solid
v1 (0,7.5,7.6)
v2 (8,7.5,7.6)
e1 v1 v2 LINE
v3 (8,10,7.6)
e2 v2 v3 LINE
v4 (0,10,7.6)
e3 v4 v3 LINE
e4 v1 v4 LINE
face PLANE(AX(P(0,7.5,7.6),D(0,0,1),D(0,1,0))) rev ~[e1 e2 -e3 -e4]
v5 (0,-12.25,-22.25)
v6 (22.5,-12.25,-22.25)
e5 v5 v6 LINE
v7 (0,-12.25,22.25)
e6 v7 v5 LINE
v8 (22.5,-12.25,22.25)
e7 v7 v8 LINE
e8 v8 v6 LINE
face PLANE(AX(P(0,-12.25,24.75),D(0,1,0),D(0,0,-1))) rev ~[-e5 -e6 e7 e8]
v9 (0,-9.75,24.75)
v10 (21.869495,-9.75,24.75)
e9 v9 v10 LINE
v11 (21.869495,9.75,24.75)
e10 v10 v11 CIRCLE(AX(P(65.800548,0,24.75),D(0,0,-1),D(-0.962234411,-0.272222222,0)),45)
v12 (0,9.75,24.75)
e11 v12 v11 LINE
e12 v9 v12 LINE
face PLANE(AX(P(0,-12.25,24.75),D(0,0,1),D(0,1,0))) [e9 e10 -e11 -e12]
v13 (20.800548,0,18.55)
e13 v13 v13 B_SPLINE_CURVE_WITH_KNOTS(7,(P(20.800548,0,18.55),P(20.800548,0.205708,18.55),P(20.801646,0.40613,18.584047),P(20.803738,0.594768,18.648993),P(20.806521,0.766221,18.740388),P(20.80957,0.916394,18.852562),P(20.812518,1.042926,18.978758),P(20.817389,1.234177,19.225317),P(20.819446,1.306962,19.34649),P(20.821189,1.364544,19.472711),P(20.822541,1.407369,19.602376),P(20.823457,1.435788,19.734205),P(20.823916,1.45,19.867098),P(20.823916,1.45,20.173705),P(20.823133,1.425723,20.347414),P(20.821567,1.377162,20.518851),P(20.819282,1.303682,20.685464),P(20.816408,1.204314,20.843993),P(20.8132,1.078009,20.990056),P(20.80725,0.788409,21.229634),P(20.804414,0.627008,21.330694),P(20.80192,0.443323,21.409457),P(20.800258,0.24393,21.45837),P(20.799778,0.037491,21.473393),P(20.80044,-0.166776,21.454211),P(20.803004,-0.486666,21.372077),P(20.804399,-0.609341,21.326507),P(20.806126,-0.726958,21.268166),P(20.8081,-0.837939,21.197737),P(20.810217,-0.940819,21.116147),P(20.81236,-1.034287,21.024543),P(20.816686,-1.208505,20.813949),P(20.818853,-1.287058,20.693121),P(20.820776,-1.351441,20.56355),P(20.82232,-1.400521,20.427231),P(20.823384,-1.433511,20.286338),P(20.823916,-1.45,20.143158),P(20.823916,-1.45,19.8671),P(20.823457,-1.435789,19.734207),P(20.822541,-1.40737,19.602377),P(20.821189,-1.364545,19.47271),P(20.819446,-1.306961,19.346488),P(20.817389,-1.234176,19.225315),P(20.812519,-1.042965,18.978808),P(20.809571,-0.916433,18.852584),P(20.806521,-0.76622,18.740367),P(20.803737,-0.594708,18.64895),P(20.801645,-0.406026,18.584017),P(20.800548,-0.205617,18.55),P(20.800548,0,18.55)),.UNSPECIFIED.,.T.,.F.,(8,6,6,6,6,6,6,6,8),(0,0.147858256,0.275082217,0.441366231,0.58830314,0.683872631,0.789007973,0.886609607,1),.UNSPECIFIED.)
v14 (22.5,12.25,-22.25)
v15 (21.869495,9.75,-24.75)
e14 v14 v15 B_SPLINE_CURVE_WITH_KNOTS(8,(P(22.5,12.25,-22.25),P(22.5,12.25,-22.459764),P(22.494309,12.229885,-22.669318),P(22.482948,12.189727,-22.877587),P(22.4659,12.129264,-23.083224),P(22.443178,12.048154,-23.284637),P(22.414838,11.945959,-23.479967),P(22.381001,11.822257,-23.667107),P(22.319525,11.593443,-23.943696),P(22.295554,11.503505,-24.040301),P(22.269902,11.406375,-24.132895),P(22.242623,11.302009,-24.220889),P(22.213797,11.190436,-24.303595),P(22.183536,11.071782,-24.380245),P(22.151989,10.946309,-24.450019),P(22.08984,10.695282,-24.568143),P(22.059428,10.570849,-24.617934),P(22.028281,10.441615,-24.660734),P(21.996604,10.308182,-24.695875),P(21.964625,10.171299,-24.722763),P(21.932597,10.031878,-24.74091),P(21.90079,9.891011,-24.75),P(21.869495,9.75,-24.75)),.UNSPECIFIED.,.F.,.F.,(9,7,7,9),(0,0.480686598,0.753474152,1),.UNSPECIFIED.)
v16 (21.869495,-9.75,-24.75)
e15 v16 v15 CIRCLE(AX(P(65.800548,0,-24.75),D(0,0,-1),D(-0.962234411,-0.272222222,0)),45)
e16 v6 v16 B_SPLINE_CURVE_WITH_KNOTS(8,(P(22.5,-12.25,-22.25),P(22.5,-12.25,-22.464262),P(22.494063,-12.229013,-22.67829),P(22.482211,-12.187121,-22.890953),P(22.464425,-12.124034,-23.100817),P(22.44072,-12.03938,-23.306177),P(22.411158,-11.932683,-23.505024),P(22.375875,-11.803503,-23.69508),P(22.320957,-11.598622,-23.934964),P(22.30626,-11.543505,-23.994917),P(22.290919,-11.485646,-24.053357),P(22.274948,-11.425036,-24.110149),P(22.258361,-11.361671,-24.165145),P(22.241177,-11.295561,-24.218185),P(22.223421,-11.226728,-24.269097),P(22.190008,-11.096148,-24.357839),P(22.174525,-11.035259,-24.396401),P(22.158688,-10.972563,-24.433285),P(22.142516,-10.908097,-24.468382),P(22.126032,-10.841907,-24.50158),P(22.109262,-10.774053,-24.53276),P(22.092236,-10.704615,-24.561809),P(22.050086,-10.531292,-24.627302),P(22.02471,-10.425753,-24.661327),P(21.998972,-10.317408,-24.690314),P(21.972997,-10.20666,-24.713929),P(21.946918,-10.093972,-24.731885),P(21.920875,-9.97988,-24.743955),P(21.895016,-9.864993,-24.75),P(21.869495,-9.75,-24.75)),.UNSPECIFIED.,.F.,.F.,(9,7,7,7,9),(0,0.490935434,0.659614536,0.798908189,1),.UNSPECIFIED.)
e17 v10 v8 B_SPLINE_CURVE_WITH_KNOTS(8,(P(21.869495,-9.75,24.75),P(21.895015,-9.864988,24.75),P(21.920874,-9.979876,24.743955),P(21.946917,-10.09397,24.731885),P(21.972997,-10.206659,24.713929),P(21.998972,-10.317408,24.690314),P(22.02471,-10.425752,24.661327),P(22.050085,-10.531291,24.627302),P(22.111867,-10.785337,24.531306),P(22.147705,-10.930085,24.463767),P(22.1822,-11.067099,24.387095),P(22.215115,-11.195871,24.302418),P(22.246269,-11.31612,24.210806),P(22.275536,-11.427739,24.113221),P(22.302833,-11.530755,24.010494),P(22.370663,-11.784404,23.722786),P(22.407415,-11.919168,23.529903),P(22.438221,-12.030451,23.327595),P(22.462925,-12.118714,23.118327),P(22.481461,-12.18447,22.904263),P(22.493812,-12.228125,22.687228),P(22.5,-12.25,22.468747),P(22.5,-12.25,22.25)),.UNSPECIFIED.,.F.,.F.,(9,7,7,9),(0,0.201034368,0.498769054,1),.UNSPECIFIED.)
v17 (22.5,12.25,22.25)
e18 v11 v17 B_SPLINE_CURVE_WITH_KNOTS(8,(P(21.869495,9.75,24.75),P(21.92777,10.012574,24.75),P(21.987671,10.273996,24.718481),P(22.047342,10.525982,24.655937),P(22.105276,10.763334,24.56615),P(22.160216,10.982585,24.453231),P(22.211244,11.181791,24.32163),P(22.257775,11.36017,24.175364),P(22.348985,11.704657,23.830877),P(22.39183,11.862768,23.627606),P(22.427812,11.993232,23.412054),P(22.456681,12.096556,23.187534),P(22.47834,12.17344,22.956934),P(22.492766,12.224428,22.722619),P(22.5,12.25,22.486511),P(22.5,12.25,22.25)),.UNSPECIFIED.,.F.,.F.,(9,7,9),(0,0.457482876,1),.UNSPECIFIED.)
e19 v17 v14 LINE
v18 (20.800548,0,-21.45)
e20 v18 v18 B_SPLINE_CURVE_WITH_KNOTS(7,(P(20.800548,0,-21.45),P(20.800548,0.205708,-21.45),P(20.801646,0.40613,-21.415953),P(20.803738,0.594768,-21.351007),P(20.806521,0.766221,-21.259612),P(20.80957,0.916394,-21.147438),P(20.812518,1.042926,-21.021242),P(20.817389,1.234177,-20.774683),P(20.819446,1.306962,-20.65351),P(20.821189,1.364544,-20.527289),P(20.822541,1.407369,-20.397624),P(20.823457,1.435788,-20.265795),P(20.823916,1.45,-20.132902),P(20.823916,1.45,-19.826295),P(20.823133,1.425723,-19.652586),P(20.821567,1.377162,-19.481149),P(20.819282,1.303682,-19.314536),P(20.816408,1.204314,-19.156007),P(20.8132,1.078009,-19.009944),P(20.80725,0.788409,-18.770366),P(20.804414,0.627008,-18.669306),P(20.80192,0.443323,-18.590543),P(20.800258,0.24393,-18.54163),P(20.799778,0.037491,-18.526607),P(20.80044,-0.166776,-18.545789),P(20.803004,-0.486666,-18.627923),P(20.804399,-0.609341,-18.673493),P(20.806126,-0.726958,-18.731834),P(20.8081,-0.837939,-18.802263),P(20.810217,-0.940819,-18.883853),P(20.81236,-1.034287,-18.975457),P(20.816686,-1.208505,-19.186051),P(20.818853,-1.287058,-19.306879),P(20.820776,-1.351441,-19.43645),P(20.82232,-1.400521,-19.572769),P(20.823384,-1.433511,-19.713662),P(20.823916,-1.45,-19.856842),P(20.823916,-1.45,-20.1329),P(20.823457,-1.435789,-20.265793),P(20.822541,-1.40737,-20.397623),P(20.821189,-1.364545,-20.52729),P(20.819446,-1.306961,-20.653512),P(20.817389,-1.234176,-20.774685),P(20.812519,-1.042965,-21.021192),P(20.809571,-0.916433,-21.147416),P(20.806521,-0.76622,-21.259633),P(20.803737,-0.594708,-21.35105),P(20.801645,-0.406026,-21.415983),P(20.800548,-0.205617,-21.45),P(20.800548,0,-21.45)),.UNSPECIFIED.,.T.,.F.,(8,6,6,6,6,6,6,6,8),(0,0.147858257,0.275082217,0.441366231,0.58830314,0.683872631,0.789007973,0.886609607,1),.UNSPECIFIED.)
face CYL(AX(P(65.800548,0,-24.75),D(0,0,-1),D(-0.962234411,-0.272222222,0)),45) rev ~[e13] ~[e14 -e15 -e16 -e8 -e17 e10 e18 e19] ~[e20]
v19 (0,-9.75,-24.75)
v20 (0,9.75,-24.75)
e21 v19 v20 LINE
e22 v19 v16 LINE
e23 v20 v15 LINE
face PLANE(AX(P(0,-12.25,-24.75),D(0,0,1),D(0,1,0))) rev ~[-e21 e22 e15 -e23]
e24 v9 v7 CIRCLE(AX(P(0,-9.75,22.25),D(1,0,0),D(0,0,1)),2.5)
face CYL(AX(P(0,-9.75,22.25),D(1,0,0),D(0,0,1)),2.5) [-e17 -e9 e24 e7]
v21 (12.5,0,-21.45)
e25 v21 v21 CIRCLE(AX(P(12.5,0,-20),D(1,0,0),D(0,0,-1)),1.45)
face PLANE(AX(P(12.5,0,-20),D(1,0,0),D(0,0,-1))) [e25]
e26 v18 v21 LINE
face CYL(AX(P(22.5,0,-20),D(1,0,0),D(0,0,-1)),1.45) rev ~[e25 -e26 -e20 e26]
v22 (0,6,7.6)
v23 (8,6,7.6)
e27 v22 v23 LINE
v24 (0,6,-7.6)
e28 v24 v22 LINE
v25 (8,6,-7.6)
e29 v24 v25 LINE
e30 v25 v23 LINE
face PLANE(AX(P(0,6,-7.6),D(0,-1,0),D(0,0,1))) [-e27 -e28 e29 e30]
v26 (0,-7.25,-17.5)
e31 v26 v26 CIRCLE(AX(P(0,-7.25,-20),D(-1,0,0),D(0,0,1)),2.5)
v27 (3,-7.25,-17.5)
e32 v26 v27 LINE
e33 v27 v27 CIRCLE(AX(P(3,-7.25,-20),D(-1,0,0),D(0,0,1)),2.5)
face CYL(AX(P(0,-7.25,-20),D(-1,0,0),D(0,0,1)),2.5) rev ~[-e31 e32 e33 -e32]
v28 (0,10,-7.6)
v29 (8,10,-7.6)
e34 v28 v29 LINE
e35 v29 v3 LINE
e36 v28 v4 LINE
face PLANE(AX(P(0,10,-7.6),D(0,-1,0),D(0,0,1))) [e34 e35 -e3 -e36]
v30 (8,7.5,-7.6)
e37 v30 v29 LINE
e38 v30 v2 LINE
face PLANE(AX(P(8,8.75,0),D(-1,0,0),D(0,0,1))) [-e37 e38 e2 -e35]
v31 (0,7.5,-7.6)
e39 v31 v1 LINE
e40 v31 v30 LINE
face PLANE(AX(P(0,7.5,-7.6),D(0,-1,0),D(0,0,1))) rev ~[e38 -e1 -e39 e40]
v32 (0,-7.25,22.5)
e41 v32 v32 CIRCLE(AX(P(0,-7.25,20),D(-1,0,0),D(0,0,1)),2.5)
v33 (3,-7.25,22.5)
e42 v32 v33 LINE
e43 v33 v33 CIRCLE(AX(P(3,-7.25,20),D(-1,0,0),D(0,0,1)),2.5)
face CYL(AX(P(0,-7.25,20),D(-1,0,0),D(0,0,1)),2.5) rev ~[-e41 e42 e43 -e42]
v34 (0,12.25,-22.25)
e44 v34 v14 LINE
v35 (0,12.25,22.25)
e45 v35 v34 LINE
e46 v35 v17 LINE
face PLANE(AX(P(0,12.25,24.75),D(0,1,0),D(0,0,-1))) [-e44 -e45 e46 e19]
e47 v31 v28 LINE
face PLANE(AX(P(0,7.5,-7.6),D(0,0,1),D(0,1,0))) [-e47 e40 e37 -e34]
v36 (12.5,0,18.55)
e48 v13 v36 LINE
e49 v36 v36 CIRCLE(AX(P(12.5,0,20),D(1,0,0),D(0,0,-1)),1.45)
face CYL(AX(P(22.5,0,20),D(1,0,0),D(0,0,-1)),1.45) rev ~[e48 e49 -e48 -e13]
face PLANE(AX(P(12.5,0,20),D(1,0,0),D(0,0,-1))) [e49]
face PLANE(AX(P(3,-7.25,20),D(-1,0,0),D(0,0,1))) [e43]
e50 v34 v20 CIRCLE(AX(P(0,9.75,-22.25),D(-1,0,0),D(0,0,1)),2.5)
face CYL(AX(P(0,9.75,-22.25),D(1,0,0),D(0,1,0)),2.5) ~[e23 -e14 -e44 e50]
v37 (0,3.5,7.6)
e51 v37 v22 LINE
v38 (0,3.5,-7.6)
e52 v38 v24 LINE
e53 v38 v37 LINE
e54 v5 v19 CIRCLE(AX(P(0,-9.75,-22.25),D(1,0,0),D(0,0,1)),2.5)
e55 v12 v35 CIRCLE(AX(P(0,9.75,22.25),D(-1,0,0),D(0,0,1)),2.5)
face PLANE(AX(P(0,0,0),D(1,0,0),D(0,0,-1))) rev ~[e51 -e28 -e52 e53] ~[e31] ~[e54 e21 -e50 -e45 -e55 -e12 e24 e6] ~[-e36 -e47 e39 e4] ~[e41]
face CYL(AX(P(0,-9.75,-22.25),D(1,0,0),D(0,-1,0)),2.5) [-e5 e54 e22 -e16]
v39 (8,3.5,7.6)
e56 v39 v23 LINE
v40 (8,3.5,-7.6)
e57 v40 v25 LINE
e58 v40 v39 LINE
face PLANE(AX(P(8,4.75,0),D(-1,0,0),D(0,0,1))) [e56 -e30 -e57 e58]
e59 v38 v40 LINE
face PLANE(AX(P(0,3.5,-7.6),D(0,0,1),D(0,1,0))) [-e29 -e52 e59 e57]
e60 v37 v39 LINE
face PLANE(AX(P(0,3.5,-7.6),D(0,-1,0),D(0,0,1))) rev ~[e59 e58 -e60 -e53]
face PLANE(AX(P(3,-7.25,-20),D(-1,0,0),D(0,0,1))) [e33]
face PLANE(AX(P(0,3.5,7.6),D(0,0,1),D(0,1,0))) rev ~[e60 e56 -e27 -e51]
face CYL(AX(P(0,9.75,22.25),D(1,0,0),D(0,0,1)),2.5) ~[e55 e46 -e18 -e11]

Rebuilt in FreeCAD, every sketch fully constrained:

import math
import FreeCAD as App
import Part
import Sketcher
from FreeCAD import Vector


def edges_at(feature, points):
    """Names of the edges that pass closest to the given points."""
    edges = feature.Shape.Edges
    near = lambda p: min(range(len(edges)), key=lambda i: edges[i].distToShape(Part.Vertex(*p))[0])
    return sorted({f"Edge{near(p) + 1}" for p in points})

doc = App.newDocument("Part")
body = doc.addObject("PartDesign::Body", "Body")

# Sketch on YZ plane
sketch1 = body.newObject("Sketcher::SketchObject", "Sketch")
sketch1.AttachmentSupport = (doc.getObject("YZ_Plane"), [""])
sketch1.MapMode = "FlatFace"
sketch1.addGeometry(Part.LineSegment(Vector(12, 25, 0), Vector(-12, 25, 0)), False)
sketch1.addGeometry(Part.LineSegment(Vector(-12, 25, 0), Vector(-12, -25, 0)), False)
sketch1.addGeometry(Part.LineSegment(Vector(-12, -25, 0), Vector(12, -25, 0)), False)
sketch1.addGeometry(Part.LineSegment(Vector(12, -25, 0), Vector(12, 25, 0)), False)
sketch1.addConstraint(Sketcher.Constraint("Coincident", 0, 2, 1, 1))
sketch1.addConstraint(Sketcher.Constraint("Coincident", 1, 2, 2, 1))
sketch1.addConstraint(Sketcher.Constraint("Coincident", 2, 2, 3, 1))
sketch1.addConstraint(Sketcher.Constraint("Coincident", 3, 2, 0, 1))
sketch1.addConstraint(Sketcher.Constraint("Horizontal", 0))
sketch1.addConstraint(Sketcher.Constraint("Vertical", 1))
sketch1.addConstraint(Sketcher.Constraint("Horizontal", 2))
sketch1.addConstraint(Sketcher.Constraint("Vertical", 3))
sketch1.addConstraint(Sketcher.Constraint("Symmetric", 0, 2, 2, 2, -1, 1))
sketch1.addConstraint(Sketcher.Constraint("DistanceX", 0, 2, 0, 1, 24.5))
sketch1.addConstraint(Sketcher.Constraint("DistanceY", 1, 2, 1, 1, 49.5))
pad1 = body.newObject("PartDesign::Pad", "Pad")
pad1.Profile = sketch1
pad1.Length = 22.5

# Sketch on YZ plane
sketch2 = body.newObject("Sketcher::SketchObject", "Sketch001")
sketch2.AttachmentSupport = (doc.getObject("YZ_Plane"), [""])
sketch2.MapMode = "FlatFace"
sketch2.addGeometry(Part.Circle(Vector(-7.2, -20, 0), Vector(0, 0, 1), 2.5), False)
sketch2.addGeometry(Part.Circle(Vector(-7.2, 20, 0), Vector(0, 0, 1), 2.5), False)
sketch2.addConstraint(Sketcher.Constraint("Equal", 0, 1))
sketch2.addConstraint(Sketcher.Constraint("Symmetric", 0, 3, 1, 3, -1))
sketch2.addConstraint(Sketcher.Constraint("Diameter", 0, 5.0))
sketch2.addConstraint(Sketcher.Constraint("DistanceY", 0, 3, -1, 1, 20.0))
sketch2.addConstraint(Sketcher.Constraint("DistanceX", 0, 3, -1, 1, 7.25))
pocket1 = body.newObject("PartDesign::Pocket", "Pocket")
pocket1.Profile = sketch2
pocket1.Length = 3
pocket1.Reversed = True

# Sketch on YZ plane
sketch3 = body.newObject("Sketcher::SketchObject", "Sketch002")
sketch3.AttachmentSupport = (doc.getObject("YZ_Plane"), [""])
sketch3.MapMode = "FlatFace"
sketch3.addGeometry(Part.LineSegment(Vector(6, -7.6, 0), Vector(3.5, -7.6, 0)), False)
sketch3.addGeometry(Part.LineSegment(Vector(3.5, -7.6, 0), Vector(3.5, 7.6, 0)), False)
sketch3.addGeometry(Part.LineSegment(Vector(3.5, 7.6, 0), Vector(6, 7.6, 0)), False)
sketch3.addGeometry(Part.LineSegment(Vector(6, 7.6, 0), Vector(6, -7.6, 0)), False)
sketch3.addGeometry(Part.LineSegment(Vector(10, -7.6, 0), Vector(7.5, -7.6, 0)), False)
sketch3.addGeometry(Part.LineSegment(Vector(7.5, -7.6, 0), Vector(7.5, 7.6, 0)), False)
sketch3.addGeometry(Part.LineSegment(Vector(7.5, 7.6, 0), Vector(10, 7.6, 0)), False)
sketch3.addGeometry(Part.LineSegment(Vector(10, 7.6, 0), Vector(10, -7.6, 0)), False)
sketch3.addConstraint(Sketcher.Constraint("Coincident", 0, 2, 1, 1))
sketch3.addConstraint(Sketcher.Constraint("Coincident", 1, 2, 2, 1))
sketch3.addConstraint(Sketcher.Constraint("Coincident", 2, 2, 3, 1))
sketch3.addConstraint(Sketcher.Constraint("Coincident", 3, 2, 0, 1))
sketch3.addConstraint(Sketcher.Constraint("Coincident", 4, 2, 5, 1))
sketch3.addConstraint(Sketcher.Constraint("Coincident", 5, 2, 6, 1))
sketch3.addConstraint(Sketcher.Constraint("Coincident", 6, 2, 7, 1))
sketch3.addConstraint(Sketcher.Constraint("Coincident", 7, 2, 4, 1))
sketch3.addConstraint(Sketcher.Constraint("Horizontal", 0))
sketch3.addConstraint(Sketcher.Constraint("Vertical", 1))
sketch3.addConstraint(Sketcher.Constraint("Horizontal", 2))
sketch3.addConstraint(Sketcher.Constraint("Vertical", 3))
sketch3.addConstraint(Sketcher.Constraint("Horizontal", 4))
sketch3.addConstraint(Sketcher.Constraint("Vertical", 5))
sketch3.addConstraint(Sketcher.Constraint("Horizontal", 6))
sketch3.addConstraint(Sketcher.Constraint("Vertical", 7))
sketch3.addConstraint(Sketcher.Constraint("Horizontal", 3, 2, 4, 2))
sketch3.addConstraint(Sketcher.Constraint("Horizontal", 2, 2, 5, 2))
sketch3.addConstraint(Sketcher.Constraint("Equal", 2, 4))
sketch3.addConstraint(Sketcher.Constraint("DistanceX", 0, 2, 0, 1, 2.5))
sketch3.addConstraint(Sketcher.Constraint("DistanceY", 1, 1, 1, 2, 15.2))
sketch3.addConstraint(Sketcher.Constraint("DistanceX", -1, 1, 2, 2, 6.0))
sketch3.addConstraint(Sketcher.Constraint("DistanceX", -1, 1, 6, 2, 10.0))
sketch3.addConstraint(Sketcher.Constraint("DistanceY", 0, 2, -1, 1, 7.6))
pocket2 = body.newObject("PartDesign::Pocket", "Pocket001")
pocket2.Profile = sketch3
pocket2.Length = 8
pocket2.Reversed = True

# Sketch on XY plane
sketch4 = body.newObject("Sketcher::SketchObject", "Sketch003")
sketch4.AttachmentSupport = (doc.getObject("XY_Plane"), [""])
sketch4.MapMode = "FlatFace"
sketch4.AttachmentOffset = App.Placement(Vector(0, 0, -24.75), App.Rotation())
sketch4.addGeometry(Part.LineSegment(Vector(22, 12, 0), Vector(22, -12, 0)), False)
sketch4.addGeometry(Part.ArcOfCircle(Part.Circle(Vector(66, 0, 0), Vector(0, 0, 1), 45), math.radians(164), math.radians(196)), False)
sketch4.addConstraint(Sketcher.Constraint("Coincident", 0, 1, 1, 1))
sketch4.addConstraint(Sketcher.Constraint("Coincident", 1, 2, 0, 2))
sketch4.addConstraint(Sketcher.Constraint("Vertical", 0))
sketch4.addConstraint(Sketcher.Constraint("PointOnObject", 1, 3, -1))
sketch4.addConstraint(Sketcher.Constraint("Radius", 1, 45.0))
sketch4.addConstraint(Sketcher.Constraint("DistanceY", 0, 2, 0, 1, 24.5))
sketch4.addConstraint(Sketcher.Constraint("DistanceX", -1, 1, 0, 1, 22.5))
pocket3 = body.newObject("PartDesign::Pocket", "Pocket002")
pocket3.Profile = sketch4
pocket3.Length = 50
pocket3.Reversed = True

# Sketch on YZ plane
sketch5 = body.newObject("Sketcher::SketchObject", "Sketch004")
sketch5.AttachmentSupport = (doc.getObject("YZ_Plane"), [""])
sketch5.MapMode = "FlatFace"
sketch5.AttachmentOffset = App.Placement(Vector(0, 0, 22.5), App.Rotation())
sketch5.addGeometry(Part.Circle(Vector(0, 20, 0), Vector(0, 0, 1), 1.4), False)
sketch5.addGeometry(Part.Circle(Vector(0, -20, 0), Vector(0, 0, 1), 1.4), False)
sketch5.addConstraint(Sketcher.Constraint("Equal", 0, 1))
sketch5.addConstraint(Sketcher.Constraint("Symmetric", 0, 3, 1, 3, -1, 1))
sketch5.addConstraint(Sketcher.Constraint("PointOnObject", 0, 3, -2))
sketch5.addConstraint(Sketcher.Constraint("Diameter", 0, 2.9))
sketch5.addConstraint(Sketcher.Constraint("DistanceY", -1, 1, 0, 3, 20.0))
pocket4 = body.newObject("PartDesign::Pocket", "Pocket003")
pocket4.Profile = sketch5
pocket4.Length = 10
doc.recompute()

fillet = body.newObject("PartDesign::Fillet", "Fillet")
fillet.Base = (pocket4, edges_at(pocket4, [
    (11.25, 12.25, -24.75),
    (11.25, -12.25, -24.75),
    (11.25, -12.25, 24.75),
    (11.25, 12.25, 24.75),
]))
fillet.Radius = 2.5

doc.recompute()
